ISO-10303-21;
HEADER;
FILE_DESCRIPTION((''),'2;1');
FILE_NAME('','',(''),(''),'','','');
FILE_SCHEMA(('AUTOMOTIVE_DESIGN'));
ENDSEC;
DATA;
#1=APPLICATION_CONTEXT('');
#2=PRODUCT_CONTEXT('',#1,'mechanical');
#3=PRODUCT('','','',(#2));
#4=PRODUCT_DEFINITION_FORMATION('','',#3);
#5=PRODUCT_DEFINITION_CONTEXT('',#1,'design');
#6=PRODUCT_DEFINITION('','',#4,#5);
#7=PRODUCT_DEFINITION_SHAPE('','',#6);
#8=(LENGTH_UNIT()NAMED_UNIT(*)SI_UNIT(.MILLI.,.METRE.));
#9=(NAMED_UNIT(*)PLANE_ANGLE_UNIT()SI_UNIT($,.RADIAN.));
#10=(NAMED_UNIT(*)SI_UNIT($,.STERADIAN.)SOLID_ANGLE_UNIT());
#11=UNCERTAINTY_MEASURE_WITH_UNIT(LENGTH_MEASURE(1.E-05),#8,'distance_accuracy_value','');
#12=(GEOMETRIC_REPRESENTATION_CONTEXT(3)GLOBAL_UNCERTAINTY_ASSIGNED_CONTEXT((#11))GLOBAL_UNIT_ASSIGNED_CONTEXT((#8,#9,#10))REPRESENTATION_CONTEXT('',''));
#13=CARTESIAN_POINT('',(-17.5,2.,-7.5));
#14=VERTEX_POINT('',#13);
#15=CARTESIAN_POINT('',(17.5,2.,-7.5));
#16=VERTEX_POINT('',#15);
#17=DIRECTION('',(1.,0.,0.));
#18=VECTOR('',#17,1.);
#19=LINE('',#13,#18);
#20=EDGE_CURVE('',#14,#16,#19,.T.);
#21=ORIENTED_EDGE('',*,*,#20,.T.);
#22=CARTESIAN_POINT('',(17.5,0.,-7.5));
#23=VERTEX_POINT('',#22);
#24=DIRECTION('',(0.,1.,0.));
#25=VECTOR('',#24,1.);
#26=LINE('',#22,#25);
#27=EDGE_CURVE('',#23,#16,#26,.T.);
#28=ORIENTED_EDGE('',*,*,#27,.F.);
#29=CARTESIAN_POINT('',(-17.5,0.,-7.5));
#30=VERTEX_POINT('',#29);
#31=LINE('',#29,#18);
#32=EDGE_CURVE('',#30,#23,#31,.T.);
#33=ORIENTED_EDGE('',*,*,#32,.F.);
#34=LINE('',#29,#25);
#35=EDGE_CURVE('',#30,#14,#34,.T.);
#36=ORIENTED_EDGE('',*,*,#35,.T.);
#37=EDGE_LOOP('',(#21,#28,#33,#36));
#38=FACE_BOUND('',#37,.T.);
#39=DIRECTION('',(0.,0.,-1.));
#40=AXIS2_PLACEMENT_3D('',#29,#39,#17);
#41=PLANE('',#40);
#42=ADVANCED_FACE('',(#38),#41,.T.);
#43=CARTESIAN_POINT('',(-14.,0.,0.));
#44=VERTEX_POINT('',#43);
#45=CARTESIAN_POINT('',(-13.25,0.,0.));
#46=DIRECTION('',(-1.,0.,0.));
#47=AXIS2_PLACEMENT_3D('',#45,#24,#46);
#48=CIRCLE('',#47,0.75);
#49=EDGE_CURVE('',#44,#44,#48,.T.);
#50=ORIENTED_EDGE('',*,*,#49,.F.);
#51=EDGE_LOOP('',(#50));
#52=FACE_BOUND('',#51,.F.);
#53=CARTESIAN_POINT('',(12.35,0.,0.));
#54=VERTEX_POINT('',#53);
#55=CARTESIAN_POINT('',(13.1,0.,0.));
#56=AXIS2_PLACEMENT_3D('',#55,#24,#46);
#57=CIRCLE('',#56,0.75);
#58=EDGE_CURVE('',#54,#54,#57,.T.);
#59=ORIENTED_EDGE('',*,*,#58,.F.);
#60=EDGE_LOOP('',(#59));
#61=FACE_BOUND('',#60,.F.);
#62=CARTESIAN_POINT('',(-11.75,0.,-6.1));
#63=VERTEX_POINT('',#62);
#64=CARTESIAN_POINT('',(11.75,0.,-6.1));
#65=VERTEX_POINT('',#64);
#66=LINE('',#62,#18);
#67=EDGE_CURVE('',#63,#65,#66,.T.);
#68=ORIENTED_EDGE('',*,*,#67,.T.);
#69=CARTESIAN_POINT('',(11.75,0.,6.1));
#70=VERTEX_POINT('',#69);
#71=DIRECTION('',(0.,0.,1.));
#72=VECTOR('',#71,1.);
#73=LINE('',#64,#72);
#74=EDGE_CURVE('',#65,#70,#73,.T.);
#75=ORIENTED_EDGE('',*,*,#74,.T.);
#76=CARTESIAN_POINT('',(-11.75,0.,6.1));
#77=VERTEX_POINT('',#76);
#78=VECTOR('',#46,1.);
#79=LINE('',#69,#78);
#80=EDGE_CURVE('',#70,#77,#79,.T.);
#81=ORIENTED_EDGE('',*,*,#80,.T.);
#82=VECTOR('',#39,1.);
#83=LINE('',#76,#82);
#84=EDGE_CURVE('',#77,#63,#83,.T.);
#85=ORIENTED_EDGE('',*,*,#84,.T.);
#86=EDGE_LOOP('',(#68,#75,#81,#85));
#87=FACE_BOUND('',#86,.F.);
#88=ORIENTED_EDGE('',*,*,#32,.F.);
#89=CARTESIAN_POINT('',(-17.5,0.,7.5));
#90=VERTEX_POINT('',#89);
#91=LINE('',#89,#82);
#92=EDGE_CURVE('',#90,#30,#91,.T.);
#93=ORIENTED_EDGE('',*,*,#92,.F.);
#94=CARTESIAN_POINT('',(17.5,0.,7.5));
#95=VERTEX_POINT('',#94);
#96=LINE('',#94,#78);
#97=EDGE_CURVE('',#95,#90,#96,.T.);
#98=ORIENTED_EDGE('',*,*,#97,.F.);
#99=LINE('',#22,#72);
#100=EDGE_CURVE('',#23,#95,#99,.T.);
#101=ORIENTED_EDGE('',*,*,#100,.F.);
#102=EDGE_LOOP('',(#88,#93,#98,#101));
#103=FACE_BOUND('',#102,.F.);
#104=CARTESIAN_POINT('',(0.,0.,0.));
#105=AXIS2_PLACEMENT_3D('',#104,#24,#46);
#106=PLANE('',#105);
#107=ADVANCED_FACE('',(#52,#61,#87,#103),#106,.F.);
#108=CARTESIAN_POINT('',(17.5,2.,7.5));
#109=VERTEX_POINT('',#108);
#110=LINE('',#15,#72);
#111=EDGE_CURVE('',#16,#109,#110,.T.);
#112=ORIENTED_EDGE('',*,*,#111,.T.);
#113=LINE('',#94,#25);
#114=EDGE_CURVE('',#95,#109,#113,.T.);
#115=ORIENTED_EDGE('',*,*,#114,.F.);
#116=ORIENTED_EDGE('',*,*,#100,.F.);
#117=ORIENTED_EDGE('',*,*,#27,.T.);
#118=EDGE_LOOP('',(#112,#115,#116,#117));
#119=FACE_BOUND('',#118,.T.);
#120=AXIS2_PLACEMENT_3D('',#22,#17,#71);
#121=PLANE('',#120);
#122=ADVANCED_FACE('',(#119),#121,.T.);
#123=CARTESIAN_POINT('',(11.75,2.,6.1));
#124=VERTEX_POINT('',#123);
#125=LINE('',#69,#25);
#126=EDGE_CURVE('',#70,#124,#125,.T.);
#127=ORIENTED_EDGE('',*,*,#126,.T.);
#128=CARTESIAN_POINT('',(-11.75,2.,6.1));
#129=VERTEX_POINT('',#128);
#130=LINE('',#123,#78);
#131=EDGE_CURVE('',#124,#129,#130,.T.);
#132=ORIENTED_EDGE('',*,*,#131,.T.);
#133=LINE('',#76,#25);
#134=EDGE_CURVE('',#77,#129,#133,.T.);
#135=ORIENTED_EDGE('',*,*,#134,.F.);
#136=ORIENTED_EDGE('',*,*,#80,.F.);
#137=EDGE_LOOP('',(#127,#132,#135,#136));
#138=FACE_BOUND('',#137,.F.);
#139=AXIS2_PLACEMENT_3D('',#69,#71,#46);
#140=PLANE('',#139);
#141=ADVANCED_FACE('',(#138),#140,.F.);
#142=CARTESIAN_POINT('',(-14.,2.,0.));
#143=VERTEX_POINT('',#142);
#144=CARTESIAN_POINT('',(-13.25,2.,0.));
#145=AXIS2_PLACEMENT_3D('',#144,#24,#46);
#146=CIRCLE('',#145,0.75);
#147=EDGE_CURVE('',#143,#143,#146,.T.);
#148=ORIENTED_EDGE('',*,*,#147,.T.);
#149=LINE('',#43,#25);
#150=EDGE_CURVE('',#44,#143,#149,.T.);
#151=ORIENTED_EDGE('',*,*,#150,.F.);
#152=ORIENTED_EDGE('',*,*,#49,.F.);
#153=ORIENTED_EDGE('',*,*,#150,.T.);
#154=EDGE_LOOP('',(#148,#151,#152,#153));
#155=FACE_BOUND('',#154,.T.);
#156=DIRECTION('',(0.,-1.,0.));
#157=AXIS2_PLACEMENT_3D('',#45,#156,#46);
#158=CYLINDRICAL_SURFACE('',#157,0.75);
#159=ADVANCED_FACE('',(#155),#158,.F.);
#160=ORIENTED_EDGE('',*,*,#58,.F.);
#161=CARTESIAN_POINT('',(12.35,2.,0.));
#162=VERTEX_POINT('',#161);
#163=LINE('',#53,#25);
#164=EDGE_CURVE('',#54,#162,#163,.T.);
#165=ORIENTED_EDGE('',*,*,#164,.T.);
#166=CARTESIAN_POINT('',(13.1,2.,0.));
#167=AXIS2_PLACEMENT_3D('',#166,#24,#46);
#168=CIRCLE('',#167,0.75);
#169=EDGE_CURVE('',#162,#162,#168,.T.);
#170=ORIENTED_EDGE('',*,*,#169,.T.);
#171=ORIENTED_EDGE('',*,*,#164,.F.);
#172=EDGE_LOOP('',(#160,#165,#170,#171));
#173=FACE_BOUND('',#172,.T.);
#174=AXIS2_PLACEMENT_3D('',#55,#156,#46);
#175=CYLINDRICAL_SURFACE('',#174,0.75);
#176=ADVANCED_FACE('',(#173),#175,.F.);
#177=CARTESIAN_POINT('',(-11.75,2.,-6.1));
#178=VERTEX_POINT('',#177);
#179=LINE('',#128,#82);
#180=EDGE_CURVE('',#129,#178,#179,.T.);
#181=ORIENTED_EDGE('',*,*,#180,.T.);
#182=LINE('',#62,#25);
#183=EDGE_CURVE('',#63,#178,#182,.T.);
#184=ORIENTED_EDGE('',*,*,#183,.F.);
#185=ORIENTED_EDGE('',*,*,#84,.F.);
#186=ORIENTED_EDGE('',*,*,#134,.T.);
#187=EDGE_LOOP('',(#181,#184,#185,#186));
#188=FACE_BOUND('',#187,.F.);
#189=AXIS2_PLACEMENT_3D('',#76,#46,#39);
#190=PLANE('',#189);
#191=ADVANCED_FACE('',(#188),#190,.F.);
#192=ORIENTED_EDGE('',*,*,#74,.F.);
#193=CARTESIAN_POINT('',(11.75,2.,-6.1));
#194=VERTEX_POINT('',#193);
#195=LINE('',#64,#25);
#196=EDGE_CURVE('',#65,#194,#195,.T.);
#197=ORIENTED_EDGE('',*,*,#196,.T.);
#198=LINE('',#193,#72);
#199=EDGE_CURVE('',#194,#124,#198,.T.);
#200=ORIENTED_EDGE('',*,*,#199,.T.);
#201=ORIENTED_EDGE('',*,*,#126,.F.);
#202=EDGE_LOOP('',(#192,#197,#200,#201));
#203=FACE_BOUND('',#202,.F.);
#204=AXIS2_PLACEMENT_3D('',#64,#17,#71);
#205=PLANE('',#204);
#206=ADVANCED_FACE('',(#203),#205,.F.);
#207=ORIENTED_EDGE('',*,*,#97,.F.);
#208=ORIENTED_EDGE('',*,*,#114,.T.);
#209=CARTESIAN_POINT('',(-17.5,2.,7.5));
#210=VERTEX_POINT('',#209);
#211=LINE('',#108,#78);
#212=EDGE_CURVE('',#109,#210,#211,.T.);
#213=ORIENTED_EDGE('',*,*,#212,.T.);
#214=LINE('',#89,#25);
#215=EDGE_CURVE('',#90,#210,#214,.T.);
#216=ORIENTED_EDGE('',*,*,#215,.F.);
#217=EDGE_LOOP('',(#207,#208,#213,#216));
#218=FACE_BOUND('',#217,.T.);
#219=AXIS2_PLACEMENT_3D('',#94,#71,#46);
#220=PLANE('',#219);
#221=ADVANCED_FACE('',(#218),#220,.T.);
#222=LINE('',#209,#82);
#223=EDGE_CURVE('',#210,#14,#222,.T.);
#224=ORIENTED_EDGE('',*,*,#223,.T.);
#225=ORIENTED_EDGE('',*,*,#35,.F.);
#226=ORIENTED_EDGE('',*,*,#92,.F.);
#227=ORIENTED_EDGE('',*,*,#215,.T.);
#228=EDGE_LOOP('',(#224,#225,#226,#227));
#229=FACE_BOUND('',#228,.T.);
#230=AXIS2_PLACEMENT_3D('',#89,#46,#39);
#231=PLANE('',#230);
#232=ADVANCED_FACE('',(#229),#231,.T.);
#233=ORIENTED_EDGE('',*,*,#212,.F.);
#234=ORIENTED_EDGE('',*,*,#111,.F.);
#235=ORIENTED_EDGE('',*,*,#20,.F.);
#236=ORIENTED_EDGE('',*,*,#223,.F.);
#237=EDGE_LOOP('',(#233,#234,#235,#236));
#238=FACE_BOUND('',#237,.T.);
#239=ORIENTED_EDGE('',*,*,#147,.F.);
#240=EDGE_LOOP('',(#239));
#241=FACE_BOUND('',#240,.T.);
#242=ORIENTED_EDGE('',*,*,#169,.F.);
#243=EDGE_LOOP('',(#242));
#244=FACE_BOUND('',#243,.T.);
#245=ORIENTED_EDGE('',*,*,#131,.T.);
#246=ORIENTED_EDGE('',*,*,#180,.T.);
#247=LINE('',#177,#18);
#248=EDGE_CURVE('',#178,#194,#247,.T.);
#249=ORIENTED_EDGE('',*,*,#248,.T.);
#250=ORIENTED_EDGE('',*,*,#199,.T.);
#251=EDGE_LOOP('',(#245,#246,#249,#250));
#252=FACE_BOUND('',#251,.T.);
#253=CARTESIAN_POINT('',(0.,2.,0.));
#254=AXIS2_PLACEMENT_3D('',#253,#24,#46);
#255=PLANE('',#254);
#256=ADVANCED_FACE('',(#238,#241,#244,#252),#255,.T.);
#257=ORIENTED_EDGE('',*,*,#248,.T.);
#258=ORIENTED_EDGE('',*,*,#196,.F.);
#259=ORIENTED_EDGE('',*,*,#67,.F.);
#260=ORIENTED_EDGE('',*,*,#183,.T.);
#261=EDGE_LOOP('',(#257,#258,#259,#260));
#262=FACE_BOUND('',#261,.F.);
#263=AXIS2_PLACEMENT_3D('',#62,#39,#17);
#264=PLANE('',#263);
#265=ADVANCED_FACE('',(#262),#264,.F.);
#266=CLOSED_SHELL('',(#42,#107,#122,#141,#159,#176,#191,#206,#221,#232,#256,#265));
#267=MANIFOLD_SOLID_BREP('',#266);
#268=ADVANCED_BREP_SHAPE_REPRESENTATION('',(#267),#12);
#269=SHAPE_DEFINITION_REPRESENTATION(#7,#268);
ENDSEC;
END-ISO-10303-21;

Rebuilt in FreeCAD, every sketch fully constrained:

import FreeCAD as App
import Part
import Sketcher
from FreeCAD import Vector
Q = App.Units.Quantity

doc = App.newDocument("Part")
body = doc.addObject("PartDesign::Body", "Body")

sketch1 = body.newObject("Sketcher::SketchObject", "Sketch")
sketch1.AttachmentSupport = (doc.getObject("XZ_Plane"), [""])
sketch1.MapMode = "FlatFace"
sketch1.addGeometry(Part.LineSegment(Vector(17.5, -7.5, 0), Vector(-17.5, -7.5, 0)), False)
sketch1.addGeometry(Part.LineSegment(Vector(-17.5, -7.5, 0), Vector(-17.5, 7.5, 0)), False)
sketch1.addGeometry(Part.LineSegment(Vector(-17.5, 7.5, 0), Vector(17.5, 7.5, 0)), False)
sketch1.addGeometry(Part.LineSegment(Vector(17.5, 7.5, 0), Vector(17.5, -7.5, 0)), False)
sketch1.addGeometry(Part.Circle(Vector(13.1, 0, 0), Vector(0, 0, 1), 0.75), False)
sketch1.addGeometry(Part.LineSegment(Vector(-11.75, 6.1, 0), Vector(-11.75, -6.1, 0)), False)
sketch1.addGeometry(Part.LineSegment(Vector(-11.75, -6.1, 0), Vector(11.75, -6.1, 0)), False)
sketch1.addGeometry(Part.LineSegment(Vector(11.75, -6.1, 0), Vector(11.75, 6.1, 0)), False)
sketch1.addGeometry(Part.LineSegment(Vector(11.75, 6.1, 0), Vector(-11.75, 6.1, 0)), False)
sketch1.addGeometry(Part.Circle(Vector(-13.25, 0, 0), Vector(0, 0, 1), 0.75), False)
sketch1.addConstraint(Sketcher.Constraint("Coincident", 0, 2, 1, 1))
sketch1.addConstraint(Sketcher.Constraint("Coincident", 1, 2, 2, 1))
sketch1.addConstraint(Sketcher.Constraint("Coincident", 2, 2, 3, 1))
sketch1.addConstraint(Sketcher.Constraint("Coincident", 3, 2, 0, 1))
sketch1.addConstraint(Sketcher.Constraint("Coincident", 5, 2, 6, 1))
sketch1.addConstraint(Sketcher.Constraint("Coincident", 6, 2, 7, 1))
sketch1.addConstraint(Sketcher.Constraint("Coincident", 7, 2, 8, 1))
sketch1.addConstraint(Sketcher.Constraint("Coincident", 8, 2, 5, 1))
sketch1.addConstraint(Sketcher.Constraint("Horizontal", 0))
sketch1.addConstraint(Sketcher.Constraint("Vertical", 1))
sketch1.addConstraint(Sketcher.Constraint("Horizontal", 2))
sketch1.addConstraint(Sketcher.Constraint("Vertical", 3))
sketch1.addConstraint(Sketcher.Constraint("Vertical", 5))
sketch1.addConstraint(Sketcher.Constraint("Horizontal", 6))
sketch1.addConstraint(Sketcher.Constraint("Vertical", 7))
sketch1.addConstraint(Sketcher.Constraint("Horizontal", 8))
sketch1.addConstraint(Sketcher.Constraint("Equal", 4, 9))
sketch1.addConstraint(Sketcher.Constraint("Symmetric", 0, 2, 2, 2, -1, 1))
sketch1.addConstraint(Sketcher.Constraint("Symmetric", 5, 2, 7, 2, -1, 1))
sketch1.addConstraint(Sketcher.Constraint("PointOnObject", 4, 3, -1))
sketch1.addConstraint(Sketcher.Constraint("PointOnObject", 9, 3, -1))
sketch1.addConstraint(Sketcher.Constraint("Diameter", 4, Q("1.5 mm")))
sketch1.addConstraint(Sketcher.Constraint("DistanceX", 0, 2, 0, 1, Q("35 mm")))
sketch1.addConstraint(Sketcher.Constraint("DistanceY", 1, 1, 1, 2, Q("15 mm")))
sketch1.addConstraint(Sketcher.Constraint("DistanceY", 5, 2, 5, 1, Q("12.2 mm")))
sketch1.addConstraint(Sketcher.Constraint("DistanceX", 9, 3, 5, 2, Q("1.5 mm")))
sketch1.addConstraint(Sketcher.Constraint("DistanceX", 0, 2, 9, 3, Q("4.25 mm")))
sketch1.addConstraint(Sketcher.Constraint("DistanceX", -1, 1, 4, 3, Q("13.1 mm")))
pad1 = body.newObject("PartDesign::Pad", "Pad")
pad1.Profile = sketch1
pad1.Length = 2
pad1.Reversed = True

doc.recompute()
